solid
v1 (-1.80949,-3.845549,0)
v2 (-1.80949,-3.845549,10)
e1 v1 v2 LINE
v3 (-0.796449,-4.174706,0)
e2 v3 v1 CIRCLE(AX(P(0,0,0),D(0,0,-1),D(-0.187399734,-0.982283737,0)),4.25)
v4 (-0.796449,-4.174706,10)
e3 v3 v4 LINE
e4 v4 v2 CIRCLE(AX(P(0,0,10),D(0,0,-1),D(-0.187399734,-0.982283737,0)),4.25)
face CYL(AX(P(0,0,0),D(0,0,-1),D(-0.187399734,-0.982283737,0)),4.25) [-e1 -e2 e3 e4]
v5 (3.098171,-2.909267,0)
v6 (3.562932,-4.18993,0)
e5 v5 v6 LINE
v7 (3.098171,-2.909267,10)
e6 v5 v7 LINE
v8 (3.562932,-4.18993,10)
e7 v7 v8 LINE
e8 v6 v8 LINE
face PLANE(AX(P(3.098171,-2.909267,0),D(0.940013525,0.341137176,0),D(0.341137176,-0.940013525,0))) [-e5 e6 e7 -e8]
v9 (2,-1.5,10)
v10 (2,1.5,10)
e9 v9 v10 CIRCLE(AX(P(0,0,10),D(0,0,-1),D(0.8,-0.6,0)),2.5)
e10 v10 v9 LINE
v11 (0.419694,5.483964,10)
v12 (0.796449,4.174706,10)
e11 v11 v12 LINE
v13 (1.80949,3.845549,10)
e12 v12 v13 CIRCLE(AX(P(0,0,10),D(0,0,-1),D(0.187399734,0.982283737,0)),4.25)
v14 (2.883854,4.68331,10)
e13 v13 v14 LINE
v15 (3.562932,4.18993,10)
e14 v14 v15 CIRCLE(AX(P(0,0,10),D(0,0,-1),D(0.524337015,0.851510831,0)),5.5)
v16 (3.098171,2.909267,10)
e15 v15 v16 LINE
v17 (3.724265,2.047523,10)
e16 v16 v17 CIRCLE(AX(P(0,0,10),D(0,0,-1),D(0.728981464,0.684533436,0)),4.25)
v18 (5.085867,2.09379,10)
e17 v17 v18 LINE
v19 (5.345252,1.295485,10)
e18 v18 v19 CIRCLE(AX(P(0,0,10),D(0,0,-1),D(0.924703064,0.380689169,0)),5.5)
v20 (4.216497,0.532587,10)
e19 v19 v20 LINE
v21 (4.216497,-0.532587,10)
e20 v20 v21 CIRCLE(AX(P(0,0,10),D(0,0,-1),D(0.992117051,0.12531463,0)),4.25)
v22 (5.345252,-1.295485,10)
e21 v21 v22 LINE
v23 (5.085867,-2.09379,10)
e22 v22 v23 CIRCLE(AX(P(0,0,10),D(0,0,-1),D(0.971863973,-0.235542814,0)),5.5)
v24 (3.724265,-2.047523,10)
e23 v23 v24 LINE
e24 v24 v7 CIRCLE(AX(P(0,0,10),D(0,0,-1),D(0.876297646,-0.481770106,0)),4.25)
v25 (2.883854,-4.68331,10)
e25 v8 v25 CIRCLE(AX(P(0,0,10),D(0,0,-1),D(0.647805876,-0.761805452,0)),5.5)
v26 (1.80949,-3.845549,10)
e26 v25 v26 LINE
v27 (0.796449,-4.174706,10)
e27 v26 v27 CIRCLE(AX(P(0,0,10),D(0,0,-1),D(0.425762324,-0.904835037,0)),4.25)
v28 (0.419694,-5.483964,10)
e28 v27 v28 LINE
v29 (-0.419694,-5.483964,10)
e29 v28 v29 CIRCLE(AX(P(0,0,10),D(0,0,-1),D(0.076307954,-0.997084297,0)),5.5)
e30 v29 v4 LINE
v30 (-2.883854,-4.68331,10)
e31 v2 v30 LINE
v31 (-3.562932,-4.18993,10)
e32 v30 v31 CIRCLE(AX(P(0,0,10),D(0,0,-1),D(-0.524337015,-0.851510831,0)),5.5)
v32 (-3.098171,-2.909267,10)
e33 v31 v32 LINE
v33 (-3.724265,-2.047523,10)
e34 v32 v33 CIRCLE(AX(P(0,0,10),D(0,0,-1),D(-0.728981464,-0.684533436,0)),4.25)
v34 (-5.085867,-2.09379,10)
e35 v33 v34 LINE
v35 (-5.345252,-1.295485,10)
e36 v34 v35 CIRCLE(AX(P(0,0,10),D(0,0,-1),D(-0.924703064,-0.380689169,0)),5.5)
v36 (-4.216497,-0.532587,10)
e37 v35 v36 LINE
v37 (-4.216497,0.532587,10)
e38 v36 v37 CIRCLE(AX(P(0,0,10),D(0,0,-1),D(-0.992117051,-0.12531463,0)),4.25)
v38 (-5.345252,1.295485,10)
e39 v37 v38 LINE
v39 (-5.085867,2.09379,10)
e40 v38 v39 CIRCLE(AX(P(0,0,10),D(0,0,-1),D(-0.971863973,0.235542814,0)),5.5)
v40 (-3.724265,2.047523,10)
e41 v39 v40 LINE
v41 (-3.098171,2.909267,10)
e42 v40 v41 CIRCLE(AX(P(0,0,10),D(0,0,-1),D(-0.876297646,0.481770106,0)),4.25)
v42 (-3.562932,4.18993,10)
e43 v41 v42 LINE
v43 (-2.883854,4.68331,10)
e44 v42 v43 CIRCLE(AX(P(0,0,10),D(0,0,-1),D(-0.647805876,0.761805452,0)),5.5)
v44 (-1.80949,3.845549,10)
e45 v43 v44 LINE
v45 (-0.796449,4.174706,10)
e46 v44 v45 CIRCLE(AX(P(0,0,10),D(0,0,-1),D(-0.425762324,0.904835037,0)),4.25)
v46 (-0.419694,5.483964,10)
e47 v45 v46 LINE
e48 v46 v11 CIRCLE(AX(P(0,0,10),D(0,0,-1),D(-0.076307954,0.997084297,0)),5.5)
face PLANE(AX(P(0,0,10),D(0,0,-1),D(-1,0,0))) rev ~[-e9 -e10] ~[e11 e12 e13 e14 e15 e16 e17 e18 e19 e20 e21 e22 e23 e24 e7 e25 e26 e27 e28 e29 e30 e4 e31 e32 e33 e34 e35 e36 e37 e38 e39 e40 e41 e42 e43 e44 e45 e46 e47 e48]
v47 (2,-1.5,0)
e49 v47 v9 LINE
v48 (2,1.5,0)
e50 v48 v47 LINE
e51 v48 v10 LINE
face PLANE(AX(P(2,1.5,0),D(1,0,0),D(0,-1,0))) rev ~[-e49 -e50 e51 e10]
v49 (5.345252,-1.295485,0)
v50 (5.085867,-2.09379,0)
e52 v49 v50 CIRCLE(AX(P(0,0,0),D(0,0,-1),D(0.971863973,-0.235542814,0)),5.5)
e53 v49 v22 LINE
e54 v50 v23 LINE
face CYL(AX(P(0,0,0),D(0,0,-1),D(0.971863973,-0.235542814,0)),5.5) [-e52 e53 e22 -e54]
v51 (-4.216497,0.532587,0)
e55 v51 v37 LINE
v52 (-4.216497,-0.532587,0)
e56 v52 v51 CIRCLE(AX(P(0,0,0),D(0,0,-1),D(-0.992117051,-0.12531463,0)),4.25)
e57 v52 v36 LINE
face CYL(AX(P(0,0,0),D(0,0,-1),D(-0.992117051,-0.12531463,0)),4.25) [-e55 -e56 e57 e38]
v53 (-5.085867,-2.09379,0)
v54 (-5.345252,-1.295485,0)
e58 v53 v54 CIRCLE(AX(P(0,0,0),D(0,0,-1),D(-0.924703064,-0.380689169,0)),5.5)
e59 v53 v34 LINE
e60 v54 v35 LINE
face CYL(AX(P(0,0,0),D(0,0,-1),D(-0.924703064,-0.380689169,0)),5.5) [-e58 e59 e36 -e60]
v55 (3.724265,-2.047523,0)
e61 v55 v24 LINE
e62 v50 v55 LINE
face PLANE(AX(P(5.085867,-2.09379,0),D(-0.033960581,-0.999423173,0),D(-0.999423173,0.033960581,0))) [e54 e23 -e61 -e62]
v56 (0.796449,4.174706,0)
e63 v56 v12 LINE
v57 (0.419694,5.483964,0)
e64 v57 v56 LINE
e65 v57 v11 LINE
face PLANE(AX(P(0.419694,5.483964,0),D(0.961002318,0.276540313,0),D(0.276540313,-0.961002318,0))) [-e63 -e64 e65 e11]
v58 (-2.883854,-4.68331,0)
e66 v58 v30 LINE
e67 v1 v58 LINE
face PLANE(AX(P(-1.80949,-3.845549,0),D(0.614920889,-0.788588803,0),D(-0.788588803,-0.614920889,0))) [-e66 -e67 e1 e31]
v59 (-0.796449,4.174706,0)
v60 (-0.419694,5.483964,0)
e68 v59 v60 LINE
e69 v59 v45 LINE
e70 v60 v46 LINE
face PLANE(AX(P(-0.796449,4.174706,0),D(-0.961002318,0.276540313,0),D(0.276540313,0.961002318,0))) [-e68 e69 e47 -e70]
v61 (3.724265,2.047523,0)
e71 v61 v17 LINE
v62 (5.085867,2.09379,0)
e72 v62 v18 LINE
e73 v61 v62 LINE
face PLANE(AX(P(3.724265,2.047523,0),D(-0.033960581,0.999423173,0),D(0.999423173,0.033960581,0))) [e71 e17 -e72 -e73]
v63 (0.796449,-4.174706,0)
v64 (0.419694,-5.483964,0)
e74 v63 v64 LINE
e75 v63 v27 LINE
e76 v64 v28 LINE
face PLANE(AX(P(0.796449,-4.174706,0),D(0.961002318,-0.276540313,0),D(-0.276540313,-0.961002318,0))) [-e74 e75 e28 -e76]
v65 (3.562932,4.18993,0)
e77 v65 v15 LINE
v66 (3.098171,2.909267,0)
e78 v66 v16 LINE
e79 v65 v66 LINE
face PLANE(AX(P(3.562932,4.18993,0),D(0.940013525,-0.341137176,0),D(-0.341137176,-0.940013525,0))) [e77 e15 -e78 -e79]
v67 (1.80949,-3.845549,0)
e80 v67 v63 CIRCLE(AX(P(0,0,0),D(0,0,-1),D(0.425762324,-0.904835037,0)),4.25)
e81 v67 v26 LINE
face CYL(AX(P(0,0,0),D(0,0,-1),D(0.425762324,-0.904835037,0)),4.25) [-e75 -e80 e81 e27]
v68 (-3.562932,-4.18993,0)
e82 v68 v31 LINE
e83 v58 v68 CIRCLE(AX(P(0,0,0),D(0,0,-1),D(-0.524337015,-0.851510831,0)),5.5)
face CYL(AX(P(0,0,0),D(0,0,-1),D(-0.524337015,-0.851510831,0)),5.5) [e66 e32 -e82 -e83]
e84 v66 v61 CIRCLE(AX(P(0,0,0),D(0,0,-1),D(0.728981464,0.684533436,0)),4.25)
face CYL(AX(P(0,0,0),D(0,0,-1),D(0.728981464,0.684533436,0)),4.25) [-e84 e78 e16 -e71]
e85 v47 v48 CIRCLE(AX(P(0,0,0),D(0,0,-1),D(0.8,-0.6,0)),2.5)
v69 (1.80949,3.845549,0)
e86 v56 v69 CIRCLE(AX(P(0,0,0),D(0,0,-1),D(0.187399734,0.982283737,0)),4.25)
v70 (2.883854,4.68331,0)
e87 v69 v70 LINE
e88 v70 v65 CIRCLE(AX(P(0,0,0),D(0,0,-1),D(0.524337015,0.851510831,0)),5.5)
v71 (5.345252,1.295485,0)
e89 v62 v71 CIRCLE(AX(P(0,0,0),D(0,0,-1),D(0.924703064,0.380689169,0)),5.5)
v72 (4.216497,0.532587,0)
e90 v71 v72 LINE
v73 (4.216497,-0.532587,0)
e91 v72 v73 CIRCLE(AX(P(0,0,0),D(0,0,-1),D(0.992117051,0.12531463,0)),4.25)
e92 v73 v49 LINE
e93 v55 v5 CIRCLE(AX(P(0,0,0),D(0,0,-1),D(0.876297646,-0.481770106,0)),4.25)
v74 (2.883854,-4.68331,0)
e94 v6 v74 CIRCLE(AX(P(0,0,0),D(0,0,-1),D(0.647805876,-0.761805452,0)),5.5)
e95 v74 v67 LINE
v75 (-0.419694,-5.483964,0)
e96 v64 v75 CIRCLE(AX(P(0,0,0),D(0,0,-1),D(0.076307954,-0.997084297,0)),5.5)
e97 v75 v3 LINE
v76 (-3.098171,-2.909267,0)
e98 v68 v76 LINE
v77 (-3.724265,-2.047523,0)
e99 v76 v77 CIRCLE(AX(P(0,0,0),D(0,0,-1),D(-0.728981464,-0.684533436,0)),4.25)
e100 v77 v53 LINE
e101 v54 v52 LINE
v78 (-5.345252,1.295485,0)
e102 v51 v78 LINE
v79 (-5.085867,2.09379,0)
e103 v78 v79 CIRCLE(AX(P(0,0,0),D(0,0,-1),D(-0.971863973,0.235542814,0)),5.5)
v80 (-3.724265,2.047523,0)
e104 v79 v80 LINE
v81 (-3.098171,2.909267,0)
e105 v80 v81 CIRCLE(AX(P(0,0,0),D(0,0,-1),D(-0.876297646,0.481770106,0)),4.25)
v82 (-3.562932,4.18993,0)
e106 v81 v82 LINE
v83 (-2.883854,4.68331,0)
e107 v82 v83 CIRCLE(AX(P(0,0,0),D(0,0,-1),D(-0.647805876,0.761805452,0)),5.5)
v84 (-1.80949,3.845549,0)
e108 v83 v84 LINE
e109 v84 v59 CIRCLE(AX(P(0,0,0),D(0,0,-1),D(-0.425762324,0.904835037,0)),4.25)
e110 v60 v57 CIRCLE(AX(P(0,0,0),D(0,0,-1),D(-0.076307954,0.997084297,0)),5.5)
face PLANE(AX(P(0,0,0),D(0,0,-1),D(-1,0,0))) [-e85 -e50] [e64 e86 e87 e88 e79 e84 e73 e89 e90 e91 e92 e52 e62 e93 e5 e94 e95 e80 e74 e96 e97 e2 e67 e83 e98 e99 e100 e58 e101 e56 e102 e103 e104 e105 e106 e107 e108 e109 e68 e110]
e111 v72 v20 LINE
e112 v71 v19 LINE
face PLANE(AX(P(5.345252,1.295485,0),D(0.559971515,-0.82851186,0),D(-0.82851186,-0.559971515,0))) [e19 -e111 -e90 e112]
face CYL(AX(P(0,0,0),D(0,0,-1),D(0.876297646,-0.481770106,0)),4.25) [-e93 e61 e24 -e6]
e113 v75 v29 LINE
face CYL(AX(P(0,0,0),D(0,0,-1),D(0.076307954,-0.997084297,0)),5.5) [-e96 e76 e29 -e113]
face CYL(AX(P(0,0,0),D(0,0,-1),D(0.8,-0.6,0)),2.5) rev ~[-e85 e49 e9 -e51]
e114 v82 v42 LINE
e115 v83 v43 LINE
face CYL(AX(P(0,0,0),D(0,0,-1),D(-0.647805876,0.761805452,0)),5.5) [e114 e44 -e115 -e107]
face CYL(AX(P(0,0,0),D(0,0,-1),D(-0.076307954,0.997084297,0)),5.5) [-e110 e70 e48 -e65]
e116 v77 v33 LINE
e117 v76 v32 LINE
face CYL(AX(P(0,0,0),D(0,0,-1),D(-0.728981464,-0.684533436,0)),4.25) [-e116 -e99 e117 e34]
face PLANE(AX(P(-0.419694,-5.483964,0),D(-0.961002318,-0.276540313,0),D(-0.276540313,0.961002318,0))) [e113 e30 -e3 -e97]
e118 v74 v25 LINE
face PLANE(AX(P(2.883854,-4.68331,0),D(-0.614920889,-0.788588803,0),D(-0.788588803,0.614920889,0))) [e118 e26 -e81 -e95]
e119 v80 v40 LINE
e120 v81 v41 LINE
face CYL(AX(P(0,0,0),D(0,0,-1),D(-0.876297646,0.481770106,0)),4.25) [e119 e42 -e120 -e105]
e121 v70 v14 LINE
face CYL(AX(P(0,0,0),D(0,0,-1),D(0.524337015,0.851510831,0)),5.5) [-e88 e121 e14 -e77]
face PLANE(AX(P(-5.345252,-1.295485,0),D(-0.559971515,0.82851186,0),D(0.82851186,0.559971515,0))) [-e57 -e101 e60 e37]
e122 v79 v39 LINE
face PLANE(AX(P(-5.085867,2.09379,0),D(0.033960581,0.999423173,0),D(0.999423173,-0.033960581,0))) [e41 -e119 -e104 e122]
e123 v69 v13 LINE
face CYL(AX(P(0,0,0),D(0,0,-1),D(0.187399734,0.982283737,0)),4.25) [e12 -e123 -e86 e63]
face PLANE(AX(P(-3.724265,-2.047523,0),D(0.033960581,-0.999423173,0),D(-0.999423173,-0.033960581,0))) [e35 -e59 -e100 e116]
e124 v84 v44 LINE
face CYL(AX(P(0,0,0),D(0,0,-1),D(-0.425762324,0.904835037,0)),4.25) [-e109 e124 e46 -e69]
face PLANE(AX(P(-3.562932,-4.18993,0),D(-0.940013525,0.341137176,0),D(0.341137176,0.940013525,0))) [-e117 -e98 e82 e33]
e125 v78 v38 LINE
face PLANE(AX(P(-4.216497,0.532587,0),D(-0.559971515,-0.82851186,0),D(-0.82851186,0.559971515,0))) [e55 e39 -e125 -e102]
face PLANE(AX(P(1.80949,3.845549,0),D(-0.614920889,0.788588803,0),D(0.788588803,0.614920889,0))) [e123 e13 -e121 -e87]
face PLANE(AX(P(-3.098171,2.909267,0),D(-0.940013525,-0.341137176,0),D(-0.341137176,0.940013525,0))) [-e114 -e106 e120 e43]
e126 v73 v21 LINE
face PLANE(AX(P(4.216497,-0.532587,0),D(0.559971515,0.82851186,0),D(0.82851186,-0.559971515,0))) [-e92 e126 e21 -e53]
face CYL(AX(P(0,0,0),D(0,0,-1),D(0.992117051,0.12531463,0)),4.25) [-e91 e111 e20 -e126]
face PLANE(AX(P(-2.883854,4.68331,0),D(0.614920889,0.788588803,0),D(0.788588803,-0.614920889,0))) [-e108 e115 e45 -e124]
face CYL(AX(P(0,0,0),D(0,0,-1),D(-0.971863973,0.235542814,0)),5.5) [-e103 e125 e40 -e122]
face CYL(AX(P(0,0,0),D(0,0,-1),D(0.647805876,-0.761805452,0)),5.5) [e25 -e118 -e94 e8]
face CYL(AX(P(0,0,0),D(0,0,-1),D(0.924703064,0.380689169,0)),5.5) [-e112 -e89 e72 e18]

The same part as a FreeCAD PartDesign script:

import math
import FreeCAD as App
import Part
import Sketcher

V = App.Vector
Q = App.Units.Quantity

doc = App.newDocument("Part")
params = doc.addObject("Spreadsheet::Sheet", "Params")
for row, (alias, value) in enumerate([
    ("sketch1_radius", "5.5 mm"),
    ("sketch1_radius2", "2.5 mm"),
    ("sketch1_height", "3 mm"),
    ("sketch1_radius3", "4.25 mm"),
    ("pad1_length", "10 mm"),
], start=1):
    params.set(f"A{row}", alias)
    params.set(f"B{row}", "=" + value)
    params.setAlias(f"B{row}", alias)

body = doc.addObject("PartDesign::Body", "Body")

sketch1 = body.newObject("Sketcher::SketchObject", "Sketch")
sketch1.AttachmentSupport = (doc.getObject("XY_Plane"), [""])
sketch1.MapMode = "FlatFace"
sketch1.addGeometry([
    Part.LineSegment(V(-0.419694, 5.483964, 0), V(-0.796449, 4.174706, 0)),
    Part.ArcOfCircle(Part.Circle(V(0, 0, 0), V(0, 0, 1), 4.25), math.radians(100.801074), math.radians(115.198926)),
    Part.LineSegment(V(-1.80949, 3.845549, 0), V(-2.883854, 4.68331, 0)),
    Part.ArcOfCircle(Part.Circle(V(0, 0, 0), V(0, 0, 1), 5.5), math.radians(121.623622), math.radians(130.376378)),
    Part.LineSegment(V(-3.562932, 4.18993, 0), V(-3.098171, 2.909267, 0)),
    Part.ArcOfCircle(Part.Circle(V(0, 0, 0), V(0, 0, 1), 4.25), math.radians(136.801074), math.radians(151.198926)),
    Part.LineSegment(V(-3.724265, 2.047523, 0), V(-5.085867, 2.09379, 0)),
    Part.ArcOfCircle(Part.Circle(V(0, 0, 0), V(0, 0, 1), 5.5), math.radians(157.623622), math.radians(166.376378)),
    Part.LineSegment(V(-5.345252, 1.295485, 0), V(-4.216497, 0.532587, 0)),
    Part.ArcOfCircle(Part.Circle(V(0, 0, 0), V(0, 0, 1), 4.25), math.radians(172.801074), math.radians(187.198926)),
    Part.LineSegment(V(-4.216497, -0.532587, 0), V(-5.345252, -1.295485, 0)),
    Part.ArcOfCircle(Part.Circle(V(0, 0, 0), V(0, 0, 1), 5.5), math.radians(-166.376378), math.radians(-157.623622)),
    Part.LineSegment(V(-5.085867, -2.09379, 0), V(-3.724265, -2.047523, 0)),
    Part.ArcOfCircle(Part.Circle(V(0, 0, 0), V(0, 0, 1), 4.25), math.radians(-151.198926), math.radians(-136.801074)),
    Part.LineSegment(V(-3.098171, -2.909267, 0), V(-3.562932, -4.18993, 0)),
    Part.ArcOfCircle(Part.Circle(V(0, 0, 0), V(0, 0, 1), 5.5), math.radians(-130.376378), math.radians(-121.623622)),
    Part.LineSegment(V(-2.883854, -4.68331, 0), V(-1.80949, -3.845549, 0)),
    Part.ArcOfCircle(Part.Circle(V(0, 0, 0), V(0, 0, 1), 4.25), math.radians(-115.198926), math.radians(-100.801074)),
    Part.LineSegment(V(-0.796449, -4.174706, 0), V(-0.419694, -5.483964, 0)),
    Part.ArcOfCircle(Part.Circle(V(0, 0, 0), V(0, 0, 1), 5.5), math.radians(-94.376378), math.radians(-85.623622)),
    Part.LineSegment(V(0.419694, -5.483964, 0), V(0.796449, -4.174706, 0)),
    Part.ArcOfCircle(Part.Circle(V(0, 0, 0), V(0, 0, 1), 4.25), math.radians(-79.198926), math.radians(-64.801074)),
    Part.LineSegment(V(1.80949, -3.845549, 0), V(2.883854, -4.68331, 0)),
    Part.ArcOfCircle(Part.Circle(V(0, 0, 0), V(0, 0, 1), 5.5), math.radians(-58.376378), math.radians(-49.623622)),
    Part.LineSegment(V(3.562932, -4.18993, 0), V(3.098171, -2.909267, 0)),
    Part.ArcOfCircle(Part.Circle(V(0, 0, 0), V(0, 0, 1), 4.25), math.radians(-43.198926), math.radians(-28.801074)),
    Part.LineSegment(V(3.724265, -2.047523, 0), V(5.085867, -2.09379, 0)),
    Part.ArcOfCircle(Part.Circle(V(0, 0, 0), V(0, 0, 1), 5.5), math.radians(-22.376378), math.radians(-13.623622)),
    Part.LineSegment(V(5.345252, -1.295485, 0), V(4.216497, -0.532587, 0)),
    Part.ArcOfCircle(Part.Circle(V(0, 0, 0), V(0, 0, 1), 4.25), math.radians(-7.198926), math.radians(7.198926)),
    Part.LineSegment(V(4.216497, 0.532587, 0), V(5.345252, 1.295485, 0)),
    Part.ArcOfCircle(Part.Circle(V(0, 0, 0), V(0, 0, 1), 5.5), math.radians(13.623622), math.radians(22.376378)),
    Part.LineSegment(V(5.085867, 2.09379, 0), V(3.724265, 2.047523, 0)),
    Part.ArcOfCircle(Part.Circle(V(0, 0, 0), V(0, 0, 1), 4.25), math.radians(28.801074), math.radians(43.198926)),
    Part.LineSegment(V(3.098171, 2.909267, 0), V(3.562932, 4.18993, 0)),
    Part.ArcOfCircle(Part.Circle(V(0, 0, 0), V(0, 0, 1), 5.5), math.radians(49.623622), math.radians(58.376378)),
    Part.LineSegment(V(2.883854, 4.68331, 0), V(1.80949, 3.845549, 0)),
    Part.ArcOfCircle(Part.Circle(V(0, 0, 0), V(0, 0, 1), 4.25), math.radians(64.801074), math.radians(79.198926)),
    Part.LineSegment(V(0.796449, 4.174706, 0), V(0.419694, 5.483964, 0)),
    Part.ArcOfCircle(Part.Circle(V(0, 0, 0), V(0, 0, 1), 5.5), math.radians(85.623622), math.radians(94.376378)),
    Part.LineSegment(V(2, 1.5, 0), V(2, -1.5, 0)),
    Part.ArcOfCircle(Part.Circle(V(0, 0, 0), V(0, 0, 1), 2.5), math.radians(36.869898), math.radians(323.130102)),
], False)
sketch1.addConstraint([
    Sketcher.Constraint("Coincident", 0, 2, 1, 1),
    Sketcher.Constraint("Coincident", 1, 2, 2, 1),
    Sketcher.Constraint("Coincident", 2, 2, 3, 1),
    Sketcher.Constraint("Coincident", 3, 2, 4, 1),
    Sketcher.Constraint("Coincident", 4, 2, 5, 1),
    Sketcher.Constraint("Coincident", 5, 2, 6, 1),
    Sketcher.Constraint("Coincident", 6, 2, 7, 1),
    Sketcher.Constraint("Coincident", 7, 2, 8, 1),
    Sketcher.Constraint("Coincident", 8, 2, 9, 1),
    Sketcher.Constraint("Coincident", 9, 2, 10, 1),
    Sketcher.Constraint("Coincident", 10, 2, 11, 1),
    Sketcher.Constraint("Coincident", 11, 2, 12, 1),
    Sketcher.Constraint("Coincident", 12, 2, 13, 1),
    Sketcher.Constraint("Coincident", 13, 2, 14, 1),
    Sketcher.Constraint("Coincident", 14, 2, 15, 1),
    Sketcher.Constraint("Coincident", 15, 2, 16, 1),
    Sketcher.Constraint("Coincident", 16, 2, 17, 1),
    Sketcher.Constraint("Coincident", 17, 2, 18, 1),
    Sketcher.Constraint("Coincident", 18, 2, 19, 1),
    Sketcher.Constraint("Coincident", 19, 2, 20, 1),
    Sketcher.Constraint("Coincident", 20, 2, 21, 1),
    Sketcher.Constraint("Coincident", 21, 2, 22, 1),
    Sketcher.Constraint("Coincident", 22, 2, 23, 1),
    Sketcher.Constraint("Coincident", 23, 2, 24, 1),
    Sketcher.Constraint("Coincident", 24, 2, 25, 1),
    Sketcher.Constraint("Coincident", 25, 2, 26, 1),
    Sketcher.Constraint("Coincident", 26, 2, 27, 1),
    Sketcher.Constraint("Coincident", 27, 2, 28, 1),
    Sketcher.Constraint("Coincident", 28, 2, 29, 1),
    Sketcher.Constraint("Coincident", 29, 2, 30, 1),
    Sketcher.Constraint("Coincident", 30, 2, 31, 1),
    Sketcher.Constraint("Coincident", 31, 2, 32, 1),
    Sketcher.Constraint("Coincident", 32, 2, 33, 1),
    Sketcher.Constraint("Coincident", 33, 2, 34, 1),
    Sketcher.Constraint("Coincident", 34, 2, 35, 1),
    Sketcher.Constraint("Coincident", 35, 2, 36, 1),
    Sketcher.Constraint("Coincident", 36, 2, 37, 1),
    Sketcher.Constraint("Coincident", 37, 2, 38, 1),
    Sketcher.Constraint("Coincident", 38, 2, 39, 1),
    Sketcher.Constraint("Coincident", 39, 2, 0, 1),
    Sketcher.Constraint("Coincident", 40, 1, 41, 1),
    Sketcher.Constraint("Coincident", 41, 2, 40, 2),
    Sketcher.Constraint("Vertical", 40),
    Sketcher.Constraint("Coincident", 1, 3, -1, 1),
    Sketcher.Constraint("Coincident", 3, 3, -1, 1),
    Sketcher.Constraint("Coincident", 5, 3, -1, 1),
    Sketcher.Constraint("Coincident", 7, 3, -1, 1),
    Sketcher.Constraint("Coincident", 9, 3, -1, 1),
    Sketcher.Constraint("Coincident", 11, 3, -1, 1),
    Sketcher.Constraint("Coincident", 13, 3, -1, 1),
    Sketcher.Constraint("Coincident", 15, 3, -1, 1),
    Sketcher.Constraint("Coincident", 17, 3, -1, 1),
    Sketcher.Constraint("Coincident", 19, 3, -1, 1),
    Sketcher.Constraint("Coincident", 21, 3, -1, 1),
    Sketcher.Constraint("Coincident", 23, 3, -1, 1),
    Sketcher.Constraint("Coincident", 25, 3, -1, 1),
    Sketcher.Constraint("Coincident", 27, 3, -1, 1),
    Sketcher.Constraint("Coincident", 29, 3, -1, 1),
    Sketcher.Constraint("Coincident", 31, 3, -1, 1),
    Sketcher.Constraint("Coincident", 33, 3, -1, 1),
    Sketcher.Constraint("Coincident", 35, 3, -1, 1),
    Sketcher.Constraint("Coincident", 37, 3, -1, 1),
    Sketcher.Constraint("Coincident", 39, 3, -1, 1),
    Sketcher.Constraint("Coincident", 41, 3, -1, 1),
    Sketcher.Constraint("Equal", 1, 5),
    Sketcher.Constraint("Equal", 3, 7),
    Sketcher.Constraint("Equal", 5, 9),
    Sketcher.Constraint("Equal", 7, 11),
    Sketcher.Constraint("Equal", 9, 13),
    Sketcher.Constraint("Equal", 11, 15),
    Sketcher.Constraint("Equal", 13, 17),
    Sketcher.Constraint("Equal", 15, 19),
    Sketcher.Constraint("Equal", 17, 21),
    Sketcher.Constraint("Equal", 19, 23),
    Sketcher.Constraint("Equal", 21, 25),
    Sketcher.Constraint("Equal", 23, 27),
    Sketcher.Constraint("Equal", 25, 29),
    Sketcher.Constraint("Equal", 27, 31),
    Sketcher.Constraint("Equal", 29, 33),
    Sketcher.Constraint("Equal", 31, 35),
    Sketcher.Constraint("Equal", 33, 37),
    Sketcher.Constraint("Equal", 35, 39),
    Sketcher.Constraint("Parallel", 0, 20),
    Sketcher.Constraint("Parallel", 2, 22),
    Sketcher.Constraint("Parallel", 4, 24),
    Sketcher.Constraint("Parallel", 6, 26),
    Sketcher.Constraint("Parallel", 8, 28),
    Sketcher.Constraint("Parallel", 10, 30),
    Sketcher.Constraint("Parallel", 12, 32),
    Sketcher.Constraint("Parallel", 14, 34),
    Sketcher.Constraint("Parallel", 16, 36),
    Sketcher.Constraint("Parallel", 18, 38),
    Sketcher.Constraint("Horizontal", 18, 2, 19, 2),
    Sketcher.Constraint("Horizontal", 17, 2, 20, 2),
    Sketcher.Constraint("Horizontal", 16, 2, 21, 2),
    Sketcher.Constraint("Horizontal", 15, 2, 22, 2),
    Sketcher.Constraint("Horizontal", 14, 2, 23, 2),
    Sketcher.Constraint("Horizontal", 13, 2, 24, 2),
    Sketcher.Constraint("Horizontal", 12, 2, 25, 2),
    Sketcher.Constraint("Horizontal", 11, 2, 26, 2),
    Sketcher.Constraint("Horizontal", 10, 2, 27, 2),
    Sketcher.Constraint("Horizontal", 9, 2, 28, 2),
    Sketcher.Constraint("Horizontal", 8, 2, 29, 2),
    Sketcher.Constraint("Horizontal", 6, 2, 31, 2),
    Sketcher.Constraint("Horizontal", 4, 2, 33, 2),
    Sketcher.Constraint("Horizontal", 2, 2, 35, 2),
    Sketcher.Constraint("Horizontal", 0, 2, 37, 2),
    Sketcher.Constraint("Vertical", 8, 2, 9, 2),
    Sketcher.Constraint("Vertical", 6, 2, 11, 2),
    Sketcher.Constraint("Vertical", 4, 2, 13, 2),
    Sketcher.Constraint("Vertical", 2, 2, 15, 2),
    Sketcher.Constraint("Vertical", 0, 2, 17, 2),
    Sketcher.Constraint("Equal", 0, 2),
    Sketcher.Constraint("Equal", 2, 4),
    Sketcher.Constraint("Equal", 4, 6),
    Sketcher.Constraint("Equal", 6, 8),
    Sketcher.Constraint("Radius", 3, Q("5.5 mm")),
    Sketcher.Constraint("Radius", 41, Q("2.5 mm")),
    Sketcher.Constraint("DistanceY", 40, 2, 40, 1, Q("3 mm")),
    Sketcher.Constraint("Radius", 1, Q("4.25 mm")),
    Sketcher.Constraint("DistanceX", 0, 2, -1, 1, Q("0.796449 mm")),
    Sketcher.Constraint("DistanceX", 1, 2, -1, 1, Q("1.80949 mm")),
    Sketcher.Constraint("DistanceY", -1, 1, 2, 2, Q("4.68331 mm")),
    Sketcher.Constraint("DistanceY", -1, 1, 3, 2, Q("4.18993 mm")),
    Sketcher.Constraint("DistanceY", -1, 1, 6, 2, Q("2.09379 mm")),
    Sketcher.Constraint("DistanceX", 7, 2, -1, 1, Q("5.345252 mm")),
])
sketch1.setExpression("Constraints[116]", "Params.sketch1_radius")
sketch1.setExpression("Constraints[117]", "Params.sketch1_radius2")
sketch1.setExpression("Constraints[118]", "Params.sketch1_height")
sketch1.setExpression("Constraints[119]", "Params.sketch1_radius3")
pad1 = body.newObject("PartDesign::Pad", "Pad")
pad1.Profile = sketch1
pad1.setExpression("Length", "Params.pad1_length")

doc.recompute()
